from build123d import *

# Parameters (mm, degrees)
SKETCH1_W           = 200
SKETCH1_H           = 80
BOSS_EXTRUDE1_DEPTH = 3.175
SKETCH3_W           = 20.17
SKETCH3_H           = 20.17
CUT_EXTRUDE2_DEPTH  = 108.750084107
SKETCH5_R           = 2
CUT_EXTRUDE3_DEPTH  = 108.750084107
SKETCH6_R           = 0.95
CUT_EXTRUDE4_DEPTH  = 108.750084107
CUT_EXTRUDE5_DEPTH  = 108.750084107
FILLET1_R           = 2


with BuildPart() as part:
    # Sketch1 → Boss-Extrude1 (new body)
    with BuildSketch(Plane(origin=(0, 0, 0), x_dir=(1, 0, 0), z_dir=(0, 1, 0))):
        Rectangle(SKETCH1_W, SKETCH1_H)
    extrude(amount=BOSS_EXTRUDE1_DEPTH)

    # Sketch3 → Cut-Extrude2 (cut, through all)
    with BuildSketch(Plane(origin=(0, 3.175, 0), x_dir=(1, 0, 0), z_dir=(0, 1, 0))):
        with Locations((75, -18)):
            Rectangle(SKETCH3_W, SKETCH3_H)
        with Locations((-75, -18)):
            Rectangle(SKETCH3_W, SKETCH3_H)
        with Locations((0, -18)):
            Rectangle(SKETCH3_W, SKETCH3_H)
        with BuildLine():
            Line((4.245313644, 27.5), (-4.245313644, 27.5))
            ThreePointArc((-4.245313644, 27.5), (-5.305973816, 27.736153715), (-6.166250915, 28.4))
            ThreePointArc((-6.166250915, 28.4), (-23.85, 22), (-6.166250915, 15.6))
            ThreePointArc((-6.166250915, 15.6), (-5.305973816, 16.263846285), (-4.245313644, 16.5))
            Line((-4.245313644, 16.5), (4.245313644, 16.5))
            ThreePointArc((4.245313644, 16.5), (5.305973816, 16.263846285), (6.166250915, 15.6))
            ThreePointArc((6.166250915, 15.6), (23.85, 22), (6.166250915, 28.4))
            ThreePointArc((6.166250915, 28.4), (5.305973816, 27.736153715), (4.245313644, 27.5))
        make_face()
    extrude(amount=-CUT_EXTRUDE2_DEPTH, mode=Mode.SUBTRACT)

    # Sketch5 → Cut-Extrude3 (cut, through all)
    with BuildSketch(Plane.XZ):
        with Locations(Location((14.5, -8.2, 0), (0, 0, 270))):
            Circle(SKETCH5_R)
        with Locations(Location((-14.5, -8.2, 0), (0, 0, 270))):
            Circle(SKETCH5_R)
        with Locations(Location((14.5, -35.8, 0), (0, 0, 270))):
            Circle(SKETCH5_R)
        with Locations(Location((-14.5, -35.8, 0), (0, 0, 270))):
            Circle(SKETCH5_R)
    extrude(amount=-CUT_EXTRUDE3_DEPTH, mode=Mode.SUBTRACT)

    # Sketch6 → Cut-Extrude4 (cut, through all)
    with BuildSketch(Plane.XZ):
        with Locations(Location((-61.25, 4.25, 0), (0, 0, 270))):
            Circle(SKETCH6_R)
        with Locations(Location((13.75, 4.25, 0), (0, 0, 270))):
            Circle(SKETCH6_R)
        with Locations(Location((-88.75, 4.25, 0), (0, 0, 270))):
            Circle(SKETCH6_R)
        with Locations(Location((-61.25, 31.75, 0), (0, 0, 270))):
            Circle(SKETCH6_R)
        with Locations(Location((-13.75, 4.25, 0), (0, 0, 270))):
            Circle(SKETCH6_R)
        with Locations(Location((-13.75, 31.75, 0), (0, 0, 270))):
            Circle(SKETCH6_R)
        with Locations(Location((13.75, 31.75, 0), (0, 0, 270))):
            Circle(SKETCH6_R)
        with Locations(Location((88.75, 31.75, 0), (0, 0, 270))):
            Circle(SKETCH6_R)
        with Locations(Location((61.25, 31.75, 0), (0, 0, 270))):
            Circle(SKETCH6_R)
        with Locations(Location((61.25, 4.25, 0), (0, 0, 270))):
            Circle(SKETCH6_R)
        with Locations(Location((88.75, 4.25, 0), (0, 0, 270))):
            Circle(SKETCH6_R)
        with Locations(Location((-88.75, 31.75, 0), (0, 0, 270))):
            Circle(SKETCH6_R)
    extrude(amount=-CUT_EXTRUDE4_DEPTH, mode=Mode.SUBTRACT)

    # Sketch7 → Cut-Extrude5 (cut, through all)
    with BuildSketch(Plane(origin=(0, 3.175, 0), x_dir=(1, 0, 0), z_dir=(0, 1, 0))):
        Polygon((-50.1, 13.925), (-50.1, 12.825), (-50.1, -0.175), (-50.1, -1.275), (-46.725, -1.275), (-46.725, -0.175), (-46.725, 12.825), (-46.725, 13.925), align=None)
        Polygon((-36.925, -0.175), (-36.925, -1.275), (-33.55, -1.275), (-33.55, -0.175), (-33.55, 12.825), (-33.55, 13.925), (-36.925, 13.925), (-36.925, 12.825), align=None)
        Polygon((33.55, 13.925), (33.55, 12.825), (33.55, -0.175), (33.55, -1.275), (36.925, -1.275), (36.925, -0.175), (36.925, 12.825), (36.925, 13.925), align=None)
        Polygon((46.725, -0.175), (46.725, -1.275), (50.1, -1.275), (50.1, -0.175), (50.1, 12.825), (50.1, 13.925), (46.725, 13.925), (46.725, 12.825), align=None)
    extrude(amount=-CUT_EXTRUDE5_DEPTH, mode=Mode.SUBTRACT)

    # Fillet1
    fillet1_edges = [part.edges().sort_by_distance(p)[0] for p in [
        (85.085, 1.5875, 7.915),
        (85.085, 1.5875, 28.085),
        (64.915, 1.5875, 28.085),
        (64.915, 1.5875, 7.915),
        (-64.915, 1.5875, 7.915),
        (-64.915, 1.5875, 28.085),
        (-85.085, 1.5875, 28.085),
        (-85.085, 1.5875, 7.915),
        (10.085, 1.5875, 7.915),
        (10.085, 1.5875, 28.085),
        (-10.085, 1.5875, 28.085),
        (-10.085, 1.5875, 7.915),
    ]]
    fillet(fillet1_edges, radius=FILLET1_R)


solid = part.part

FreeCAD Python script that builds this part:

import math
import FreeCAD as App
import Part
import Sketcher

V = App.Vector
Q = App.Units.Quantity


def edges_at(feature, points):
    """Names of the edges that pass closest to the given points."""
    edges = feature.Shape.Edges
    near = lambda p: min(range(len(edges)), key=lambda i: edges[i].distToShape(Part.Vertex(*p))[0])
    return sorted({f"Edge{near(p) + 1}" for p in points})


def add_polygon(sketch, points):
    """Adds a closed chain of lines whose ends are joined by coincident constraints."""
    first, n = sketch.GeometryCount, len(points)
    for a, b in zip(points, points[1:] + points[:1]):
        sketch.addGeometry(Part.LineSegment(App.Vector(*a, 0), App.Vector(*b, 0)), False)
    for i in range(n):
        sketch.addConstraint(Sketcher.Constraint("Coincident", first + i, 2, first + (i + 1) % n, 1))

doc = App.newDocument("Part")
body = doc.addObject("PartDesign::Body", "Body")

sketch1 = body.newObject("Sketcher::SketchObject", "Sketch")
sketch1.AttachmentSupport = (doc.getObject("XZ_Plane"), [""])
sketch1.MapMode = "FlatFace"
add_polygon(sketch1, [(-100, -40), (-100, 40), (100, 40), (100, -40)])
sketch1.addConstraint([
    Sketcher.Constraint("Vertical", 0),
    Sketcher.Constraint("Horizontal", 1),
    Sketcher.Constraint("Vertical", 2),
    Sketcher.Constraint("Horizontal", 3),
    Sketcher.Constraint("Symmetric", 0, 2, 2, 2, -1, 1),
    Sketcher.Constraint("DistanceX", 1, 1, 1, 2, Q("200 mm")),
    Sketcher.Constraint("DistanceY", 0, 1, 0, 2, Q("80 mm")),
])
pad1 = body.newObject("PartDesign::Pad", "Pad")
pad1.Profile = sketch1
pad1.Length = 3.175
pad1.Reversed = True

sketch2 = body.newObject("Sketcher::SketchObject", "Sketch001")
sketch2.AttachmentSupport = (doc.getObject("XZ_Plane"), [""])
sketch2.MapMode = "FlatFace"
sketch2.AttachmentOffset = App.Placement(V(0, 0, -3.175), App.Rotation())
add_polygon(sketch2, [(64.9, 7.9), (64.9, 28.1), (85.1, 28.1), (85.1, 7.9)])
add_polygon(sketch2, [(-85.1, 7.9), (-85.1, 28.1), (-64.9, 28.1), (-64.9, 7.9)])
add_polygon(sketch2, [(-10.1, 7.9), (-10.1, 28.1), (10.1, 28.1), (10.1, 7.9)])
sketch2.addGeometry(Part.LineSegment(V(4.2, -27.5, 0), V(-4.2, -27.5, 0)), False)
sketch2.addGeometry(Part.ArcOfCircle(Part.Circle(V(-4.2, -30, 0), V(0, 0, 1), 2.5), math.radians(90), math.radians(140)), False)
sketch2.addGeometry(Part.ArcOfCircle(Part.Circle(V(-13.8, -22, 0), V(0, 0, 1), 10), math.radians(40), math.radians(320)), False)
sketch2.addGeometry(Part.ArcOfCircle(Part.Circle(V(-4.2, -14, 0), V(0, 0, 1), 2.5), math.radians(-140), math.radians(-90)), False)
sketch2.addGeometry(Part.LineSegment(V(-4.2, -16.5, 0), V(4.2, -16.5, 0)), False)
sketch2.addGeometry(Part.ArcOfCircle(Part.Circle(V(4.2, -14, 0), V(0, 0, 1), 2.5), math.radians(-90), math.radians(-40)), False)
sketch2.addGeometry(Part.ArcOfCircle(Part.Circle(V(13.8, -22, 0), V(0, 0, 1), 10), math.radians(-140), math.radians(140)), False)
sketch2.addGeometry(Part.ArcOfCircle(Part.Circle(V(4.2, -30, 0), V(0, 0, 1), 2.5), math.radians(40), math.radians(90)), False)
sketch2.addConstraint([
    Sketcher.Constraint("Tangent", 12, 2, 13, 1),
    Sketcher.Constraint("Tangent", 13, 2, 14, 2),
    Sketcher.Constraint("Tangent", 14, 1, 15, 1),
    Sketcher.Constraint("Tangent", 15, 2, 16, 1),
    Sketcher.Constraint("Tangent", 16, 2, 17, 1),
    Sketcher.Constraint("Tangent", 17, 2, 18, 2),
    Sketcher.Constraint("Tangent", 18, 1, 19, 1),
    Sketcher.Constraint("Tangent", 19, 2, 12, 1),
    Sketcher.Constraint("Vertical", 0),
    Sketcher.Constraint("Horizontal", 1),
    Sketcher.Constraint("Vertical", 2),
    Sketcher.Constraint("Horizontal", 3),
    Sketcher.Constraint("Vertical", 4),
    Sketcher.Constraint("Horizontal", 5),
    Sketcher.Constraint("Vertical", 6),
    Sketcher.Constraint("Horizontal", 7),
    Sketcher.Constraint("Vertical", 8),
    Sketcher.Constraint("Horizontal", 9),
    Sketcher.Constraint("Vertical", 10),
    Sketcher.Constraint("Horizontal", 11),
    Sketcher.Constraint("Horizontal", 12),
    Sketcher.Constraint("Horizontal", 16),
    Sketcher.Constraint("Equal", 13, 15),
    Sketcher.Constraint("Equal", 15, 17),
    Sketcher.Constraint("Equal", 14, 18),
    Sketcher.Constraint("Equal", 17, 19),
    Sketcher.Constraint("Symmetric", 14, 3, 18, 3, -2),
    Sketcher.Constraint("Symmetric", 1, 2, 4, 2, -2),
    Sketcher.Constraint("Symmetric", 3, 2, 6, 2, -2),
    Sketcher.Constraint("Horizontal", 5, 2, 8, 2),
    Sketcher.Constraint("Horizontal", 7, 2, 10, 2),
    Sketcher.Constraint("Vertical", 13, 3, 15, 3),
    Sketcher.Constraint("Equal", 7, 9),
    Sketcher.Constraint("Equal", 11, 0),
    Sketcher.Constraint("Radius", 14, Q("10 mm")),
    Sketcher.Constraint("Radius", 13, Q("2.5 mm")),
    Sketcher.Constraint("DistanceY", 13, 3, -1, 1, Q("30 mm")),
    Sketcher.Constraint("DistanceY", 14, 3, -1, 1, Q("22 mm")),
    Sketcher.Constraint("DistanceX", 1, 1, 1, 2, Q("20.17 mm")),
    Sketcher.Constraint("DistanceX", 14, 3, 18, 3, Q("27.7 mm")),
    Sketcher.Constraint("DistanceX", 5, 2, 8, 2, Q("54.83 mm")),
    Sketcher.Constraint("DistanceX", 9, 2, 0, 2, Q("54.83 mm")),
    Sketcher.Constraint("DistanceY", -1, 1, 0, 2, Q("28.085 mm")),
])
pocket1 = body.newObject("PartDesign::Pocket", "Pocket")
pocket1.Profile = sketch2
pocket1.Type = "ThroughAll"
pocket1.Reversed = True

sketch3 = body.newObject("Sketcher::SketchObject", "Sketch002")
sketch3.AttachmentSupport = (doc.getObject("XZ_Plane"), [""])
sketch3.MapMode = "FlatFace"
sketch3.addGeometry([
    Part.Circle(V(14.5, -8.2, 0), V(0, 0, 1), 2),
    Part.Circle(V(-14.5, -8.2, 0), V(0, 0, 1), 2),
    Part.Circle(V(14.5, -35.8, 0), V(0, 0, 1), 2),
    Part.Circle(V(-14.5, -35.8, 0), V(0, 0, 1), 2),
], False)
sketch3.addConstraint([
    Sketcher.Constraint("Equal", 0, 1),
    Sketcher.Constraint("Equal", 1, 2),
    Sketcher.Constraint("Equal", 2, 3),
    Sketcher.Constraint("Symmetric", 0, 3, 1, 3, -2),
    Sketcher.Constraint("Symmetric", 2, 3, 3, 3, -2),
    Sketcher.Constraint("Vertical", 0, 3, 2, 3),
    Sketcher.Constraint("Diameter", 0, Q("4 mm")),
    Sketcher.Constraint("DistanceX", 1, 3, 0, 3, Q("29 mm")),
    Sketcher.Constraint("DistanceY", 0, 3, -1, 1, Q("8.2 mm")),
    Sketcher.Constraint("DistanceY", 2, 3, -1, 1, Q("35.8 mm")),
])
pocket2 = body.newObject("PartDesign::Pocket", "Pocket001")
pocket2.Profile = sketch3
pocket2.Type = "ThroughAll"

sketch4 = body.newObject("Sketcher::SketchObject", "Sketch003")
sketch4.AttachmentSupport = (doc.getObject("XZ_Plane"), [""])
sketch4.MapMode = "FlatFace"
sketch4.addGeometry([
    Part.Circle(V(-61.2, 4.2, 0), V(0, 0, 1), 0.9),
    Part.Circle(V(13.8, 4.2, 0), V(0, 0, 1), 0.9),
    Part.Circle(V(-88.8, 4.2, 0), V(0, 0, 1), 0.9),
    Part.Circle(V(-61.2, 31.8, 0), V(0, 0, 1), 0.9),
    Part.Circle(V(-13.8, 4.2, 0), V(0, 0, 1), 0.9),
    Part.Circle(V(-13.8, 31.8, 0), V(0, 0, 1), 0.9),
    Part.Circle(V(13.8, 31.8, 0), V(0, 0, 1), 0.9),
    Part.Circle(V(88.8, 31.8, 0), V(0, 0, 1), 0.9),
    Part.Circle(V(61.2, 31.8, 0), V(0, 0, 1), 0.9),
    Part.Circle(V(61.2, 4.2, 0), V(0, 0, 1), 0.9),
    Part.Circle(V(88.8, 4.2, 0), V(0, 0, 1), 0.9),
    Part.Circle(V(-88.8, 31.8, 0), V(0, 0, 1), 0.9),
], False)
sketch4.addConstraint([
    Sketcher.Constraint("Equal", 0, 1),
    Sketcher.Constraint("Equal", 1, 2),
    Sketcher.Constraint("Equal", 2, 3),
    Sketcher.Constraint("Equal", 3, 4),
    Sketcher.Constraint("Equal", 4, 5),
    Sketcher.Constraint("Equal", 5, 6),
    Sketcher.Constraint("Equal", 6, 7),
    Sketcher.Constraint("Equal", 7, 8),
    Sketcher.Constraint("Equal", 8, 9),
    Sketcher.Constraint("Equal", 9, 10),
    Sketcher.Constraint("Equal", 10, 11),
    Sketcher.Constraint("Symmetric", 1, 3, 4, 3, -2),
    Sketcher.Constraint("Symmetric", 5, 3, 6, 3, -2),
    Sketcher.Constraint("Symmetric", 3, 3, 8, 3, -2),
    Sketcher.Constraint("Symmetric", 0, 3, 9, 3, -2),
    Sketcher.Constraint("Symmetric", 2, 3, 10, 3, -2),
    Sketcher.Constraint("Symmetric", 7, 3, 11, 3, -2),
    Sketcher.Constraint("Horizontal", 0, 3, 1, 3),
    Sketcher.Constraint("Horizontal", 1, 3, 2, 3),
    Sketcher.Constraint("Horizontal", 3, 3, 5, 3),
    Sketcher.Constraint("Horizontal", 6, 3, 7, 3),
    Sketcher.Constraint("Vertical", 0, 3, 3, 3),
    Sketcher.Constraint("Vertical", 4, 3, 5, 3),
    Sketcher.Constraint("Vertical", 7, 3, 10, 3),
    Sketcher.Constraint("Diameter", 0, Q("1.9 mm")),
    Sketcher.Constraint("DistanceX", 0, 3, 1, 3, Q("75 mm")),
    Sketcher.Constraint("DistanceX", 2, 3, 4, 3, Q("75 mm")),
    Sketcher.Constraint("DistanceX", 2, 3, 0, 3, Q("27.5 mm")),
    Sketcher.Constraint("DistanceY", 0, 3, 3, 3, Q("27.5 mm")),
    Sketcher.Constraint("DistanceY", -1, 1, 0, 3, Q("4.25 mm")),
])
pocket3 = body.newObject("PartDesign::Pocket", "Pocket002")
pocket3.Profile = sketch4
pocket3.Type = "ThroughAll"

sketch5 = body.newObject("Sketcher::SketchObject", "Sketch004")
sketch5.AttachmentSupport = (doc.getObject("XZ_Plane"), [""])
sketch5.MapMode = "FlatFace"
sketch5.AttachmentOffset = App.Placement(V(0, 0, -3.175), App.Rotation())
add_polygon(sketch5, [(-50.1, -13.9), (-50.1, 1.3), (-46.7, 1.3), (-46.7, -13.9)])
add_polygon(sketch5, [(-36.9, 1.3), (-33.5, 1.3), (-33.5, -13.9), (-36.9, -13.9)])
add_polygon(sketch5, [(33.5, -13.9), (33.5, 1.3), (36.9, 1.3), (36.9, -13.9)])
add_polygon(sketch5, [(46.7, 1.3), (50.1, 1.3), (50.1, -13.9), (46.7, -13.9)])
sketch5.addConstraint([
    Sketcher.Constraint("Vertical", 0),
    Sketcher.Constraint("Horizontal", 1),
    Sketcher.Constraint("Vertical", 2),
    Sketcher.Constraint("Horizontal", 3),
    Sketcher.Constraint("Horizontal", 4),
    Sketcher.Constraint("Vertical", 5),
    Sketcher.Constraint("Horizontal", 6),
    Sketcher.Constraint("Vertical", 7),
    Sketcher.Constraint("Vertical", 8),
    Sketcher.Constraint("Horizontal", 9),
    Sketcher.Constraint("Vertical", 10),
    Sketcher.Constraint("Horizontal", 11),
    Sketcher.Constraint("Horizontal", 12),
    Sketcher.Constraint("Vertical", 13),
    Sketcher.Constraint("Horizontal", 14),
    Sketcher.Constraint("Vertical", 15),
    Sketcher.Constraint("Symmetric", 4, 2, 8, 2, -2),
    Sketcher.Constraint("Symmetric", 6, 2, 10, 2, -2),
    Sketcher.Constraint("Symmetric", 0, 2, 12, 2, -2),
    Sketcher.Constraint("Symmetric", 2, 2, 14, 2, -2),
    Sketcher.Constraint("Horizontal", 1, 2, 4, 2),
    Sketcher.Constraint("Horizontal", 3, 2, 5, 2),
    Sketcher.Constraint("Equal", 3, 4),
    Sketcher.Constraint("DistanceY", 0, 1, 0, 2, Q("15.2 mm")),
    Sketcher.Constraint("DistanceX", 0, 2, -1, 1, Q("50.1 mm")),
    Sketcher.Constraint("DistanceX", 2, 2, 6, 2, Q("9.8 mm")),
    Sketcher.Constraint("DistanceX", 4, 2, 8, 2, Q("67.1 mm")),
    Sketcher.Constraint("DistanceY", -1, 1, 0, 2, Q("1.275 mm")),
])
pocket4 = body.newObject("PartDesign::Pocket", "Pocket003")
pocket4.Profile = sketch5
pocket4.Type = "ThroughAll"
pocket4.Reversed = True
doc.recompute()

fillet = body.newObject("PartDesign::Fillet", "Fillet")
fillet.Base = (pocket4, edges_at(pocket4, [
    (85.085, 1.587, 7.915),
    (85.085, 1.587, 28.085),
    (64.915, 1.587, 28.085),
    (64.915, 1.587, 7.915),
    (-64.915, 1.587, 7.915),
    (-64.915, 1.587, 28.085),
    (-85.085, 1.587, 28.085),
    (-85.085, 1.587, 7.915),
    (10.085, 1.587, 7.915),
    (10.085, 1.587, 28.085),
    (-10.085, 1.587, 28.085),
    (-10.085, 1.587, 7.915),
]))
fillet.Radius = 2

doc.recompute()
